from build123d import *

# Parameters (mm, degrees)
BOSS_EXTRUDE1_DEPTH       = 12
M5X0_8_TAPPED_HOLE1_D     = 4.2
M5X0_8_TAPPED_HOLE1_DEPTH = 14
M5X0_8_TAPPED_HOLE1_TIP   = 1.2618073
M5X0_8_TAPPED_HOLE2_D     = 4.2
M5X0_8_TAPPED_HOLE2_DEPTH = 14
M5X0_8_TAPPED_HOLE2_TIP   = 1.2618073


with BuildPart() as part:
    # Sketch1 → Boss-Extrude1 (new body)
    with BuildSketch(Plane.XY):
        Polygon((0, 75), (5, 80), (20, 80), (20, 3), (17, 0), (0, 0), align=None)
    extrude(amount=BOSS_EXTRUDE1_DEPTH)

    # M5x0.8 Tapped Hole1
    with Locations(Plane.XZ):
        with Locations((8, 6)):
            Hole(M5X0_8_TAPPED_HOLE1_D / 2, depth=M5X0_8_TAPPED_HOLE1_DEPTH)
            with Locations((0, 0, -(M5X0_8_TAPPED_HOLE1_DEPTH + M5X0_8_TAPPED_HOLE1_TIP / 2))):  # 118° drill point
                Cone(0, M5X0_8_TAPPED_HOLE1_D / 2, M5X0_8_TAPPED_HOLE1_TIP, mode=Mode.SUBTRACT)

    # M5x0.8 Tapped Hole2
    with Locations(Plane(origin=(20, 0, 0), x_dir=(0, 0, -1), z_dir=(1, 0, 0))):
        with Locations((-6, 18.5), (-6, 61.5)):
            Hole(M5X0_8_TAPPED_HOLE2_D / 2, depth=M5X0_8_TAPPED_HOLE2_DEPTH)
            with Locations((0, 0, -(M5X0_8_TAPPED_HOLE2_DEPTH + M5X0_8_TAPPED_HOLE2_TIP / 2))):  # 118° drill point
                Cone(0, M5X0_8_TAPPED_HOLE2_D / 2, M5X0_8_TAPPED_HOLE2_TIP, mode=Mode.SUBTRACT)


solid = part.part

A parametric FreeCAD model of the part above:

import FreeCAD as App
import Part
import Sketcher

V = App.Vector
Q = App.Units.Quantity

doc = App.newDocument("Part")
body = doc.addObject("PartDesign::Body", "Body")

# Sketch on XY plane
sketch1 = body.newObject("Sketcher::SketchObject", "Sketch")
sketch1.AttachmentSupport = (doc.getObject("XY_Plane"), [""])
sketch1.MapMode = "FlatFace"
sketch1.addGeometry([
    Part.LineSegment(V(5, 80, 0), V(0, 75, 0)),  # 0
    Part.LineSegment(V(0, 75, 0), V(0, 0, 0)),  # 1
    Part.LineSegment(V(0, 0, 0), V(17, 0, 0)),  # 2
    Part.LineSegment(V(17, 0, 0), V(20, 3, 0)),  # 3
    Part.LineSegment(V(20, 3, 0), V(20, 80, 0)),  # 4
    Part.LineSegment(V(20, 80, 0), V(5, 80, 0)),  # 5
], False)
sketch1.addConstraint([
    Sketcher.Constraint("Coincident", 0, 2, 1, 1),
    Sketcher.Constraint("Coincident", 1, 2, 2, 1),
    Sketcher.Constraint("Coincident", 2, 2, 3, 1),
    Sketcher.Constraint("Coincident", 3, 2, 4, 1),
    Sketcher.Constraint("Coincident", 4, 2, 5, 1),
    Sketcher.Constraint("Coincident", 5, 2, 0, 1),
    Sketcher.Constraint("Vertical", 1),
    Sketcher.Constraint("Horizontal", 2),
    Sketcher.Constraint("Vertical", 4),
    Sketcher.Constraint("Horizontal", 5),
    Sketcher.Constraint("Coincident", 1, 2, -1, 1),
    Sketcher.Constraint("Parallel", 0, 3),
    Sketcher.Constraint("DistanceX", 2, 1, 2, 2, Q("17 mm")),
    Sketcher.Constraint("DistanceX", 5, 2, 5, 1, Q("15 mm")),
    Sketcher.Constraint("DistanceY", 1, 2, 1, 1, Q("75 mm")),
    Sketcher.Constraint("DistanceY", 4, 1, 4, 2, Q("77 mm")),
    Sketcher.Constraint("DistanceX", -1, 1, 3, 2, Q("20 mm")),
])
pad1 = body.newObject("PartDesign::Pad", "Pad")
pad1.Profile = sketch1
pad1.Length = 12

# Sketch on XZ plane
sketch2 = body.newObject("Sketcher::SketchObject", "Sketch001")
sketch2.AttachmentSupport = (doc.getObject("XZ_Plane"), [""])
sketch2.MapMode = "FlatFace"
sketch2.addGeometry(Part.Circle(V(8, 6, 0), V(0, 0, 1), 2.1), False)
sketch2.addConstraint([
    Sketcher.Constraint("Diameter", 0, Q("4.2 mm")),
    Sketcher.Constraint("DistanceX", -1, 1, 0, 3, Q("8 mm")),
    Sketcher.Constraint("DistanceY", -1, 1, 0, 3, Q("6 mm")),
])
doc.recompute()
hole = body.newObject("PartDesign::Hole", "Hole")
hole.Profile = sketch2
hole.ThreadType = "None"
hole.Diameter = 4.2
hole.DepthType = "Dimension"
hole.Depth = 14
hole.DrillPoint = "Angled"
hole.DrillPointAngle = 118

# Sketch on YZ plane
sketch3 = body.newObject("Sketcher::SketchObject", "Sketch002")
sketch3.AttachmentSupport = (doc.getObject("YZ_Plane"), [""])
sketch3.MapMode = "FlatFace"
sketch3.AttachmentOffset = App.Placement(V(0, 0, 20), App.Rotation())
sketch3.addGeometry([
    Part.Circle(V(18.5, 6, 0), V(0, 0, 1), 2.1),
    Part.Circle(V(61.5, 6, 0), V(0, 0, 1), 2.1),
], False)
sketch3.addConstraint([
    Sketcher.Constraint("Equal", 0, 1),
    Sketcher.Constraint("Horizontal", 0, 3, 1, 3),
    Sketcher.Constraint("Diameter", 0, Q("4.2 mm")),
    Sketcher.Constraint("DistanceY", -1, 1, 0, 3, Q("6 mm")),
    Sketcher.Constraint("DistanceX", 0, 3, 1, 3, Q("43 mm")),
    Sketcher.Constraint("DistanceX", -1, 1, 0, 3, Q("18.5 mm")),
])
doc.recompute()
hole2 = body.newObject("PartDesign::Hole", "Hole001")
hole2.Profile = sketch3
hole2.ThreadType = "None"
hole2.Diameter = 4.2
hole2.DepthType = "Dimension"
hole2.Depth = 14
hole2.DrillPoint = "Angled"
hole2.DrillPointAngle = 118

doc.recompute()
